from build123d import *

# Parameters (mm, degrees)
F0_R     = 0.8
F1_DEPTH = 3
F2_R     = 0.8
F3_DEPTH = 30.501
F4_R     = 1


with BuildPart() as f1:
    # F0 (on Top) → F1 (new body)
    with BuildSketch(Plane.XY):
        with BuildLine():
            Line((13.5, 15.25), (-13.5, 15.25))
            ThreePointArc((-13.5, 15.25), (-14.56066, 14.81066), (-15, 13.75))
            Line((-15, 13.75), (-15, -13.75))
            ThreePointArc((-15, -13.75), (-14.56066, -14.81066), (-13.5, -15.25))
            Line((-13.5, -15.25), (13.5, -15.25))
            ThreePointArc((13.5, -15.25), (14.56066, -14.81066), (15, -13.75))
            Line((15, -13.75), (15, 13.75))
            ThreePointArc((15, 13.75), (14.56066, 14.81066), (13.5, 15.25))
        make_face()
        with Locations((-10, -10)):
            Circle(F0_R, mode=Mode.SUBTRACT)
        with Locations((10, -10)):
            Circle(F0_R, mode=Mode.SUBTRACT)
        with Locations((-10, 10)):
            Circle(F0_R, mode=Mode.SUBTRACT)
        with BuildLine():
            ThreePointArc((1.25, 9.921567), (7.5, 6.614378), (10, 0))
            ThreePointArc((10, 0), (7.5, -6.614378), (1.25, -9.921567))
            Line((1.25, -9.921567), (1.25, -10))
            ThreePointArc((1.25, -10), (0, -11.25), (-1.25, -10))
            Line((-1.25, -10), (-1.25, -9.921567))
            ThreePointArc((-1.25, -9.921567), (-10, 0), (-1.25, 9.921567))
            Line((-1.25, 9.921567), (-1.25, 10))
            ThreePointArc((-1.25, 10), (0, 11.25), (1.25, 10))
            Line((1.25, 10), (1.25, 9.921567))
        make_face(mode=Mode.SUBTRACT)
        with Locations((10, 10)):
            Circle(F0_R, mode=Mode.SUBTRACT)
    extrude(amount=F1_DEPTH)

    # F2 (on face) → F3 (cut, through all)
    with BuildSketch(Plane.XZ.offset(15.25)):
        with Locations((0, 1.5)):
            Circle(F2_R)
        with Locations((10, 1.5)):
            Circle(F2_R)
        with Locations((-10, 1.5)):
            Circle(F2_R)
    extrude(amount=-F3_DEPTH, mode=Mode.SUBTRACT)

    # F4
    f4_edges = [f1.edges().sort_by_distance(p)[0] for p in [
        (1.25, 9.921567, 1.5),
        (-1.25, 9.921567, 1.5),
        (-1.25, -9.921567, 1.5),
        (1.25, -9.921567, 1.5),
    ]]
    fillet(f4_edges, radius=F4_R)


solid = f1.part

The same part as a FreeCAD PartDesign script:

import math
import FreeCAD as App
import Part
import Sketcher

V = App.Vector


def edges_at(feature, points):
    """Names of the edges that pass closest to the given points."""
    edges = feature.Shape.Edges
    near = lambda p: min(range(len(edges)), key=lambda i: edges[i].distToShape(Part.Vertex(*p))[0])
    return sorted({f"Edge{near(p) + 1}" for p in points})

doc = App.newDocument("Part")
body = doc.addObject("PartDesign::Body", "Body")

sketch1 = doc.addObject("Sketcher::SketchObject", "Sketch")
body.addObject(sketch1)
sketch1.AttachmentSupport = (doc.XY_Plane, [""])
sketch1.MapMode = "FlatFace"
sketch1.addGeometry(Part.LineSegment(V(13.5, 15.25, 0), V(-13.5, 15.25, 0)), False)
sketch1.addGeometry(Part.ArcOfCircle(Part.Circle(V(-13.499999, 13.749999, 0), V(0, 0, 1), 1.500001), math.radians(90.000022), math.radians(179.999978)), False)
sketch1.addGeometry(Part.LineSegment(V(-15, 13.75, 0), V(-15, -13.75, 0)), False)
sketch1.addGeometry(Part.ArcOfCircle(Part.Circle(V(-13.499999, -13.749999, 0), V(0, 0, 1), 1.500001), math.radians(-179.999978), math.radians(-90.000022)), False)
sketch1.addGeometry(Part.LineSegment(V(-13.5, -15.25, 0), V(13.5, -15.25, 0)), False)
sketch1.addGeometry(Part.ArcOfCircle(Part.Circle(V(13.499999, -13.749999, 0), V(0, 0, 1), 1.500001), math.radians(-89.999978), math.radians(-0.000022)), False)
sketch1.addGeometry(Part.LineSegment(V(15, -13.75, 0), V(15, 13.75, 0)), False)
sketch1.addGeometry(Part.ArcOfCircle(Part.Circle(V(13.499999, 13.749999, 0), V(0, 0, 1), 1.500001), math.radians(0.000022), math.radians(89.999978)), False)
sketch1.addGeometry(Part.Circle(V(-10, -10, 0), V(0, 0, 1), 0.8), False)
sketch1.addGeometry(Part.Circle(V(10, -10, 0), V(0, 0, 1), 0.8), False)
sketch1.addGeometry(Part.Circle(V(-10, 10, 0), V(0, 0, 1), 0.8), False)
sketch1.addGeometry(Part.LineSegment(V(1.25, 10, 0), V(1.25, 9.921567, 0)), False)
sketch1.addGeometry(Part.ArcOfCircle(Part.Circle(V(0, 0, 0), V(0, 0, 1), 10), math.radians(0.000001), math.radians(82.819246)), False)
sketch1.addGeometry(Part.ArcOfCircle(Part.Circle(V(0, 0, 0), V(0, 0, 1), 10), math.radians(-82.819246), math.radians(-0.000001)), False)
sketch1.addGeometry(Part.LineSegment(V(1.25, -9.921567, 0), V(1.25, -10, 0)), False)
sketch1.addGeometry(Part.ArcOfCircle(Part.Circle(V(0, -10, 0), V(0, 0, 1), 1.25), math.radians(180), math.radians(360)), False)
sketch1.addGeometry(Part.LineSegment(V(-1.25, -10, 0), V(-1.25, -9.921567, 0)), False)
sketch1.addGeometry(Part.ArcOfCircle(Part.Circle(V(0, 0, 0), V(0, 0, 1), 10), math.radians(97.180753), math.radians(262.819247)), False)
sketch1.addGeometry(Part.LineSegment(V(-1.25, 9.921567, 0), V(-1.25, 10, 0)), False)
sketch1.addGeometry(Part.ArcOfCircle(Part.Circle(V(0, 10, 0), V(0, 0, 1), 1.25), math.radians(0), math.radians(180)), False)
sketch1.addGeometry(Part.Circle(V(10, 10, 0), V(0, 0, 1), 0.8), False)
sketch1.addConstraint(Sketcher.Constraint("Tangent", 0, 2, 1, 1))
sketch1.addConstraint(Sketcher.Constraint("Tangent", 1, 2, 2, 1))
sketch1.addConstraint(Sketcher.Constraint("Tangent", 2, 2, 3, 1))
sketch1.addConstraint(Sketcher.Constraint("Tangent", 3, 2, 4, 1))
sketch1.addConstraint(Sketcher.Constraint("Tangent", 4, 2, 5, 1))
sketch1.addConstraint(Sketcher.Constraint("Tangent", 5, 2, 6, 1))
sketch1.addConstraint(Sketcher.Constraint("Tangent", 6, 2, 7, 1))
sketch1.addConstraint(Sketcher.Constraint("Tangent", 7, 2, 0, 1))
sketch1.addConstraint(Sketcher.Constraint("Coincident", 11, 2, 12, 2))
sketch1.addConstraint(Sketcher.Constraint("Tangent", 12, 1, 13, 2))
sketch1.addConstraint(Sketcher.Constraint("Coincident", 13, 1, 14, 1))
sketch1.addConstraint(Sketcher.Constraint("Tangent", 14, 2, 15, 2))
sketch1.addConstraint(Sketcher.Constraint("Tangent", 15, 1, 16, 1))
sketch1.addConstraint(Sketcher.Constraint("Coincident", 16, 2, 17, 2))
sketch1.addConstraint(Sketcher.Constraint("Coincident", 17, 1, 18, 1))
sketch1.addConstraint(Sketcher.Constraint("Tangent", 18, 2, 19, 2))
sketch1.addConstraint(Sketcher.Constraint("Tangent", 19, 1, 11, 1))
sketch1.addConstraint(Sketcher.Constraint("Horizontal", 0))
sketch1.addConstraint(Sketcher.Constraint("Vertical", 2))
sketch1.addConstraint(Sketcher.Constraint("Horizontal", 4))
sketch1.addConstraint(Sketcher.Constraint("Vertical", 6))
sketch1.addConstraint(Sketcher.Constraint("Vertical", 11))
sketch1.addConstraint(Sketcher.Constraint("Vertical", 14))
sketch1.addConstraint(Sketcher.Constraint("Vertical", 16))
sketch1.addConstraint(Sketcher.Constraint("Vertical", 18))
sketch1.addConstraint(Sketcher.Constraint("Coincident", 12, 3, -1, 1))
sketch1.addConstraint(Sketcher.Constraint("Coincident", 17, 3, -1, 1))
sketch1.addConstraint(Sketcher.Constraint("Equal", 1, 3))
sketch1.addConstraint(Sketcher.Constraint("Equal", 3, 5))
sketch1.addConstraint(Sketcher.Constraint("Equal", 5, 7))
sketch1.addConstraint(Sketcher.Constraint("Equal", 8, 9))
sketch1.addConstraint(Sketcher.Constraint("Equal", 9, 10))
sketch1.addConstraint(Sketcher.Constraint("Equal", 12, 13))
sketch1.addConstraint(Sketcher.Constraint("Equal", 13, 17))
sketch1.addConstraint(Sketcher.Constraint("Equal", 15, 19))
sketch1.addConstraint(Sketcher.Constraint("Equal", 10, 20))
sketch1.addConstraint(Sketcher.Constraint("Symmetric", 1, 3, 5, 3, -1, 1))
sketch1.addConstraint(Sketcher.Constraint("Symmetric", 9, 3, 10, 3, -1, 1))
sketch1.addConstraint(Sketcher.Constraint("Symmetric", 15, 3, 19, 3, -1, 1))
sketch1.addConstraint(Sketcher.Constraint("Symmetric", 8, 3, 20, 3, -1, 1))
sketch1.addConstraint(Sketcher.Constraint("Symmetric", 8, 3, 9, 3, -2))
sketch1.addConstraint(Sketcher.Constraint("PointOnObject", 15, 3, -2))
sketch1.addConstraint(Sketcher.Constraint("PointOnObject", 12, 1, -1))
sketch1.addConstraint(Sketcher.Constraint("Horizontal", 9, 3, 15, 3))
sketch1.addConstraint(Sketcher.Constraint("Vertical", 20, 3, 12, 1))
sketch1.addConstraint(Sketcher.Constraint("Radius", 12, 10.0))
sketch1.addConstraint(Sketcher.Constraint("Diameter", 8, 1.6))
sketch1.addConstraint(Sketcher.Constraint("Radius", 1, 1.500001))
sketch1.addConstraint(Sketcher.Constraint("DistanceX", 0, 2, 0, 1, 27.0))
sketch1.addConstraint(Sketcher.Constraint("Radius", 15, 1.25))
sketch1.addConstraint(Sketcher.Constraint("DistanceY", 2, 2, 2, 1, 27.5))
sketch1.addConstraint(Sketcher.Constraint("DistanceY", 8, 3, -1, 1, 10.0))
pad1 = doc.addObject("PartDesign::Pad", "Pad")
body.addObject(pad1)
pad1.Profile = sketch1
pad1.Length = 3

sketch2 = doc.addObject("Sketcher::SketchObject", "Sketch001")
body.addObject(sketch2)
sketch2.AttachmentSupport = (doc.XZ_Plane, [""])
sketch2.MapMode = "FlatFace"
sketch2.AttachmentOffset = App.Placement(V(0, 0, 15.25), App.Rotation())
sketch2.addGeometry(Part.Circle(V(0, 1.5, 0), V(0, 0, 1), 0.8), False)
sketch2.addGeometry(Part.Circle(V(10, 1.5, 0), V(0, 0, 1), 0.8), False)
sketch2.addGeometry(Part.Circle(V(-10, 1.5, 0), V(0, 0, 1), 0.8), False)
sketch2.addConstraint(Sketcher.Constraint("Equal", 0, 1))
sketch2.addConstraint(Sketcher.Constraint("Equal", 1, 2))
sketch2.addConstraint(Sketcher.Constraint("Symmetric", 1, 3, 2, 3, -2))
sketch2.addConstraint(Sketcher.Constraint("PointOnObject", 0, 3, -2))
sketch2.addConstraint(Sketcher.Constraint("Horizontal", 0, 3, 1, 3))
sketch2.addConstraint(Sketcher.Constraint("Diameter", 0, 1.6))
sketch2.addConstraint(Sketcher.Constraint("DistanceX", -1, 1, 1, 3, 10.0))
sketch2.addConstraint(Sketcher.Constraint("DistanceY", -1, 1, 0, 3, 1.5))
pocket1 = doc.addObject("PartDesign::Pocket", "Pocket")
body.addObject(pocket1)
pocket1.Profile = sketch2
pocket1.Type = "ThroughAll"
doc.recompute()

fillet = doc.addObject("PartDesign::Fillet", "Fillet")
body.addObject(fillet)
fillet.Base = (pocket1, edges_at(pocket1, [
    (1.25, 9.922, 1.5),
    (-1.25, 9.922, 1.5),
    (-1.25, -9.922, 1.5),
    (1.25, -9.922, 1.5),
]))
fillet.Radius = 1

doc.recompute()
